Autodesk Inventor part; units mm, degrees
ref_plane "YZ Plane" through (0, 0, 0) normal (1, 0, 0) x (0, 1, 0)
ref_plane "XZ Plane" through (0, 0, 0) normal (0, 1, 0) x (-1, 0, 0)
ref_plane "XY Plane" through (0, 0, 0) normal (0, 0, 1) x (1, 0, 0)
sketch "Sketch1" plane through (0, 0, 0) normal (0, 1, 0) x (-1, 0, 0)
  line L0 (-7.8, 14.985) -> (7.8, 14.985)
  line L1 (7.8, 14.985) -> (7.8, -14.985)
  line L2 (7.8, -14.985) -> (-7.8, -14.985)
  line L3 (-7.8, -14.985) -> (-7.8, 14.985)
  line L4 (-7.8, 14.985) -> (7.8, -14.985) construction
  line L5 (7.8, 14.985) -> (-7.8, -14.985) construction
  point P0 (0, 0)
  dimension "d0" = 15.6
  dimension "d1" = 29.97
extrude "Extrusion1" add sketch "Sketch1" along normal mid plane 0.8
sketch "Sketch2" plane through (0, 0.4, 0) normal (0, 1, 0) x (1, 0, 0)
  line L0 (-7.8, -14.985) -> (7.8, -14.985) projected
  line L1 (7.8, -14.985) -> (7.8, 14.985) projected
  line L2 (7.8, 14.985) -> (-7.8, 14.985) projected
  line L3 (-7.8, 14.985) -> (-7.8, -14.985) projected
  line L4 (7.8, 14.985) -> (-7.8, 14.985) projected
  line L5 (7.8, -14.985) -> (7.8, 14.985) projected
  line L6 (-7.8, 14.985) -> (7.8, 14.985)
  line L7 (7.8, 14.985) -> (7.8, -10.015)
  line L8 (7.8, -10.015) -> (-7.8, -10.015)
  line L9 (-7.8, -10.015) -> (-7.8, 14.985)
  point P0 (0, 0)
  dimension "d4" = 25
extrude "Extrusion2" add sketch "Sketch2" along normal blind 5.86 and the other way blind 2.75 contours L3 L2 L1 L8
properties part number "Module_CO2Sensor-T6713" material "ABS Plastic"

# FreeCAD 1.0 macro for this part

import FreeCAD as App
import Part
import Sketcher


def add_polygon(sketch, points):
    """Adds a closed chain of lines whose ends are joined by coincident constraints."""
    first, n = sketch.GeometryCount, len(points)
    for a, b in zip(points, points[1:] + points[:1]):
        sketch.addGeometry(Part.LineSegment(App.Vector(*a, 0), App.Vector(*b, 0)), False)
    for i in range(n):
        sketch.addConstraint(Sketcher.Constraint("Coincident", first + i, 2, first + (i + 1) % n, 1))

doc = App.newDocument("Part")
body = doc.addObject("PartDesign::Body", "Body")

sketch1 = body.newObject("Sketcher::SketchObject", "Sketch")
sketch1.AttachmentSupport = (doc.getObject("XZ_Plane"), [""])
sketch1.MapMode = "FlatFace"
add_polygon(sketch1, [(-8, 15), (8, 15), (8, -15), (-8, -15)])
sketch1.addConstraint([
    Sketcher.Constraint("Horizontal", 0),
    Sketcher.Constraint("Vertical", 1),
    Sketcher.Constraint("Horizontal", 2),
    Sketcher.Constraint("Vertical", 3),
    Sketcher.Constraint("Symmetric", 0, 2, 2, 2, -1, 1),
    Sketcher.Constraint("DistanceX", 0, 1, 0, 2, 15.6),
    Sketcher.Constraint("DistanceY", 1, 2, 1, 1, 29.97),
])
pad1 = body.newObject("PartDesign::Pad", "Pad")
pad1.Profile = sketch1
pad1.Length = 0.8
pad1.Midplane = True

sketch2 = body.newObject("Sketcher::SketchObject", "Sketch001")
sketch2.AttachmentSupport = (doc.getObject("XZ_Plane"), [""])
sketch2.MapMode = "FlatFace"
sketch2.AttachmentOffset = App.Placement(App.Vector(0, 0, -0.4), App.Rotation())
add_polygon(sketch2, [(-8, -15), (-8, 10), (8, 10), (8, -15)])
sketch2.addConstraint([
    Sketcher.Constraint("Vertical", 0),
    Sketcher.Constraint("Horizontal", 1),
    Sketcher.Constraint("Vertical", 2),
    Sketcher.Constraint("Horizontal", 3),
    Sketcher.Constraint("DistanceY", 0, 1, 0, 2, 25.0),
    Sketcher.Constraint("DistanceX", 1, 1, 1, 2, 15.6),
    Sketcher.Constraint("DistanceX", 0, 2, -1, 1, 7.8),
    Sketcher.Constraint("DistanceY", -1, 1, 0, 2, 10.015),
])
pad2 = body.newObject("PartDesign::Pad", "Pad001")
pad2.Profile = sketch2
pad2.Type = "TwoLengths"
pad2.Length = 5.86
pad2.Length2 = 2.75
pad2.Reversed = True

doc.recompute()
